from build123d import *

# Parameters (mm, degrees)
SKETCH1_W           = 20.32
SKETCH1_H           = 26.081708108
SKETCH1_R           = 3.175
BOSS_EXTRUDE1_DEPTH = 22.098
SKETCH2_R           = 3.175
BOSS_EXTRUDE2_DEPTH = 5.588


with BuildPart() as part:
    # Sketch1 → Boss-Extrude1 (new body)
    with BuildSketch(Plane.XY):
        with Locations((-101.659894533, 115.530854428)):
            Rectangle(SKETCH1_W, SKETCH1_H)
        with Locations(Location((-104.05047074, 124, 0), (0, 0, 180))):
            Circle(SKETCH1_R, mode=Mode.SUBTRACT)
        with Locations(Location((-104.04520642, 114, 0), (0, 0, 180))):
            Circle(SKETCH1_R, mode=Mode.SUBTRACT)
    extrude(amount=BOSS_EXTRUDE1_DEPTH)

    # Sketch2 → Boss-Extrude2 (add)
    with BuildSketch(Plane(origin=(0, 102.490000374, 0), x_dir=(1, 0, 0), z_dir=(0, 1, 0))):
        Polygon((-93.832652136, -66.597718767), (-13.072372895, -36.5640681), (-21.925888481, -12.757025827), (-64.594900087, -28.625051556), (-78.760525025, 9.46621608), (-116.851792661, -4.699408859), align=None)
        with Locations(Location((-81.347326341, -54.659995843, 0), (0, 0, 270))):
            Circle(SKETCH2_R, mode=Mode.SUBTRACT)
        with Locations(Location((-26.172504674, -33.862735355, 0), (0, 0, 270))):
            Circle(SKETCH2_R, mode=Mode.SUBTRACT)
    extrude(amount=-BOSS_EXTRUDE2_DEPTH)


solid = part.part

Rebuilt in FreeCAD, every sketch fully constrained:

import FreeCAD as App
import Part
import Sketcher
from FreeCAD import Vector
Q = App.Units.Quantity

doc = App.newDocument("Part")
body = doc.addObject("PartDesign::Body", "Body")

sketch1 = doc.addObject("Sketcher::SketchObject", "Sketch")
body.addObject(sketch1)
sketch1.AttachmentSupport = (doc.XY_Plane, [""])
sketch1.MapMode = "FlatFace"
sketch1.addGeometry(Part.LineSegment(Vector(-111.819895, 128.571708, 0), Vector(-111.819895, 102.49, 0)), False)
sketch1.addGeometry(Part.LineSegment(Vector(-111.819895, 102.49, 0), Vector(-91.499895, 102.49, 0)), False)
sketch1.addGeometry(Part.LineSegment(Vector(-91.499895, 102.49, 0), Vector(-91.499895, 128.571708, 0)), False)
sketch1.addGeometry(Part.LineSegment(Vector(-91.499895, 128.571708, 0), Vector(-111.819895, 128.571708, 0)), False)
sketch1.addGeometry(Part.Circle(Vector(-104.045206, 114, 0), Vector(0, 0, 1), 3.175), False)
sketch1.addGeometry(Part.Circle(Vector(-104.050471, 124, 0), Vector(0, 0, 1), 3.175), False)
sketch1.addConstraint(Sketcher.Constraint("Coincident", 0, 2, 1, 1))
sketch1.addConstraint(Sketcher.Constraint("Coincident", 1, 2, 2, 1))
sketch1.addConstraint(Sketcher.Constraint("Coincident", 2, 2, 3, 1))
sketch1.addConstraint(Sketcher.Constraint("Coincident", 3, 2, 0, 1))
sketch1.addConstraint(Sketcher.Constraint("Vertical", 0))
sketch1.addConstraint(Sketcher.Constraint("Horizontal", 1))
sketch1.addConstraint(Sketcher.Constraint("Vertical", 2))
sketch1.addConstraint(Sketcher.Constraint("Horizontal", 3))
sketch1.addConstraint(Sketcher.Constraint("Equal", 4, 5))
sketch1.addConstraint(Sketcher.Constraint("Diameter", 4, Q("0.25 in")))
sketch1.addConstraint(Sketcher.Constraint("DistanceX", 1, 1, 1, 2, Q("0.8 in")))
sketch1.addConstraint(Sketcher.Constraint("DistanceY", 0, 2, 0, 1, Q("26.081708 mm")))
sketch1.addConstraint(Sketcher.Constraint("DistanceY", -1, 1, 4, 3, Q("114 mm")))
sketch1.addConstraint(Sketcher.Constraint("DistanceY", -1, 1, 5, 3, Q("124 mm")))
sketch1.addConstraint(Sketcher.Constraint("DistanceY", -1, 1, 0, 2, Q("102.49 mm")))
sketch1.addConstraint(Sketcher.Constraint("DistanceX", 5, 3, -1, 1, Q("104.050471 mm")))
sketch1.addConstraint(Sketcher.Constraint("DistanceX", 0, 2, 4, 3, Q("7.774688 mm")))
sketch1.addConstraint(Sketcher.Constraint("DistanceX", 4, 3, -1, 1, Q("104.045206 mm")))
pad1 = doc.addObject("PartDesign::Pad", "Pad")
body.addObject(pad1)
pad1.Profile = sketch1
pad1.Length = Q("0.87 in")

sketch2 = doc.addObject("Sketcher::SketchObject", "Sketch001")
body.addObject(sketch2)
sketch2.AttachmentSupport = (doc.XZ_Plane, [""])
sketch2.MapMode = "FlatFace"
sketch2.AttachmentOffset = App.Placement(Vector(0, 0, -102.49), App.Rotation())
sketch2.addGeometry(Part.LineSegment(Vector(-93.832652, 66.597719, 0), Vector(-13.072373, 36.564068, 0)), False)
sketch2.addGeometry(Part.LineSegment(Vector(-13.072373, 36.564068, 0), Vector(-21.925888, 12.757026, 0)), False)
sketch2.addGeometry(Part.LineSegment(Vector(-21.925888, 12.757026, 0), Vector(-64.5949, 28.625052, 0)), False)
sketch2.addGeometry(Part.LineSegment(Vector(-64.5949, 28.625052, 0), Vector(-78.760525, -9.466216, 0)), False)
sketch2.addGeometry(Part.LineSegment(Vector(-78.760525, -9.466216, 0), Vector(-116.851793, 4.699409, 0)), False)
sketch2.addGeometry(Part.LineSegment(Vector(-116.851793, 4.699409, 0), Vector(-93.832652, 66.597719, 0)), False)
sketch2.addGeometry(Part.Circle(Vector(-81.347326, 54.659996, 0), Vector(0, 0, 1), 3.175), False)
sketch2.addGeometry(Part.Circle(Vector(-26.172505, 33.862735, 0), Vector(0, 0, 1), 3.175), False)
sketch2.addConstraint(Sketcher.Constraint("Coincident", 0, 2, 1, 1))
sketch2.addConstraint(Sketcher.Constraint("Coincident", 1, 2, 2, 1))
sketch2.addConstraint(Sketcher.Constraint("Coincident", 2, 2, 3, 1))
sketch2.addConstraint(Sketcher.Constraint("Coincident", 3, 2, 4, 1))
sketch2.addConstraint(Sketcher.Constraint("Coincident", 4, 2, 5, 1))
sketch2.addConstraint(Sketcher.Constraint("Coincident", 5, 2, 0, 1))
sketch2.addConstraint(Sketcher.Constraint("Equal", 6, 7))
sketch2.addConstraint(Sketcher.Constraint("Perpendicular", 0, 1))
sketch2.addConstraint(Sketcher.Constraint("Perpendicular", 1, 2))
sketch2.addConstraint(Sketcher.Constraint("Perpendicular", 2, 3))
sketch2.addConstraint(Sketcher.Constraint("Perpendicular", 3, 4))
sketch2.addConstraint(Sketcher.Constraint("Perpendicular", 4, 5))
sketch2.addConstraint(Sketcher.Constraint("Equal", 3, 4))
sketch2.addConstraint(Sketcher.Constraint("Diameter", 6, Q("0.25 in")))
sketch2.addConstraint(Sketcher.Constraint("Distance", 1, Q("1 in")))
sketch2.addConstraint(Sketcher.Constraint("Distance", 3, Q("1.6 in")))
sketch2.addConstraint(Sketcher.Constraint("DistanceX", 2, 2, -1, 1, Q("64.5949 mm")))
sketch2.addConstraint(Sketcher.Constraint("DistanceX", 6, 3, 3, 2, Q("2.586801 mm")))
sketch2.addConstraint(Sketcher.Constraint("DistanceY", -1, 1, 0, 2, Q("36.564068 mm")))
sketch2.addConstraint(Sketcher.Constraint("DistanceX", 1, 2, -1, 1, Q("21.925888 mm")))
sketch2.addConstraint(Sketcher.Constraint("DistanceY", -1, 1, 2, 2, Q("28.625052 mm")))
sketch2.addConstraint(Sketcher.Constraint("DistanceX", 6, 3, 7, 3, Q("55.174822 mm")))
sketch2.addConstraint(Sketcher.Constraint("DistanceY", 7, 3, 6, 3, Q("20.79726 mm")))
sketch2.addConstraint(Sketcher.Constraint("DistanceY", 1, 2, 7, 3, Q("21.10571 mm")))
pad2 = doc.addObject("PartDesign::Pad", "Pad001")
body.addObject(pad2)
pad2.Profile = sketch2
pad2.Length = Q("0.22 in")

doc.recompute()
